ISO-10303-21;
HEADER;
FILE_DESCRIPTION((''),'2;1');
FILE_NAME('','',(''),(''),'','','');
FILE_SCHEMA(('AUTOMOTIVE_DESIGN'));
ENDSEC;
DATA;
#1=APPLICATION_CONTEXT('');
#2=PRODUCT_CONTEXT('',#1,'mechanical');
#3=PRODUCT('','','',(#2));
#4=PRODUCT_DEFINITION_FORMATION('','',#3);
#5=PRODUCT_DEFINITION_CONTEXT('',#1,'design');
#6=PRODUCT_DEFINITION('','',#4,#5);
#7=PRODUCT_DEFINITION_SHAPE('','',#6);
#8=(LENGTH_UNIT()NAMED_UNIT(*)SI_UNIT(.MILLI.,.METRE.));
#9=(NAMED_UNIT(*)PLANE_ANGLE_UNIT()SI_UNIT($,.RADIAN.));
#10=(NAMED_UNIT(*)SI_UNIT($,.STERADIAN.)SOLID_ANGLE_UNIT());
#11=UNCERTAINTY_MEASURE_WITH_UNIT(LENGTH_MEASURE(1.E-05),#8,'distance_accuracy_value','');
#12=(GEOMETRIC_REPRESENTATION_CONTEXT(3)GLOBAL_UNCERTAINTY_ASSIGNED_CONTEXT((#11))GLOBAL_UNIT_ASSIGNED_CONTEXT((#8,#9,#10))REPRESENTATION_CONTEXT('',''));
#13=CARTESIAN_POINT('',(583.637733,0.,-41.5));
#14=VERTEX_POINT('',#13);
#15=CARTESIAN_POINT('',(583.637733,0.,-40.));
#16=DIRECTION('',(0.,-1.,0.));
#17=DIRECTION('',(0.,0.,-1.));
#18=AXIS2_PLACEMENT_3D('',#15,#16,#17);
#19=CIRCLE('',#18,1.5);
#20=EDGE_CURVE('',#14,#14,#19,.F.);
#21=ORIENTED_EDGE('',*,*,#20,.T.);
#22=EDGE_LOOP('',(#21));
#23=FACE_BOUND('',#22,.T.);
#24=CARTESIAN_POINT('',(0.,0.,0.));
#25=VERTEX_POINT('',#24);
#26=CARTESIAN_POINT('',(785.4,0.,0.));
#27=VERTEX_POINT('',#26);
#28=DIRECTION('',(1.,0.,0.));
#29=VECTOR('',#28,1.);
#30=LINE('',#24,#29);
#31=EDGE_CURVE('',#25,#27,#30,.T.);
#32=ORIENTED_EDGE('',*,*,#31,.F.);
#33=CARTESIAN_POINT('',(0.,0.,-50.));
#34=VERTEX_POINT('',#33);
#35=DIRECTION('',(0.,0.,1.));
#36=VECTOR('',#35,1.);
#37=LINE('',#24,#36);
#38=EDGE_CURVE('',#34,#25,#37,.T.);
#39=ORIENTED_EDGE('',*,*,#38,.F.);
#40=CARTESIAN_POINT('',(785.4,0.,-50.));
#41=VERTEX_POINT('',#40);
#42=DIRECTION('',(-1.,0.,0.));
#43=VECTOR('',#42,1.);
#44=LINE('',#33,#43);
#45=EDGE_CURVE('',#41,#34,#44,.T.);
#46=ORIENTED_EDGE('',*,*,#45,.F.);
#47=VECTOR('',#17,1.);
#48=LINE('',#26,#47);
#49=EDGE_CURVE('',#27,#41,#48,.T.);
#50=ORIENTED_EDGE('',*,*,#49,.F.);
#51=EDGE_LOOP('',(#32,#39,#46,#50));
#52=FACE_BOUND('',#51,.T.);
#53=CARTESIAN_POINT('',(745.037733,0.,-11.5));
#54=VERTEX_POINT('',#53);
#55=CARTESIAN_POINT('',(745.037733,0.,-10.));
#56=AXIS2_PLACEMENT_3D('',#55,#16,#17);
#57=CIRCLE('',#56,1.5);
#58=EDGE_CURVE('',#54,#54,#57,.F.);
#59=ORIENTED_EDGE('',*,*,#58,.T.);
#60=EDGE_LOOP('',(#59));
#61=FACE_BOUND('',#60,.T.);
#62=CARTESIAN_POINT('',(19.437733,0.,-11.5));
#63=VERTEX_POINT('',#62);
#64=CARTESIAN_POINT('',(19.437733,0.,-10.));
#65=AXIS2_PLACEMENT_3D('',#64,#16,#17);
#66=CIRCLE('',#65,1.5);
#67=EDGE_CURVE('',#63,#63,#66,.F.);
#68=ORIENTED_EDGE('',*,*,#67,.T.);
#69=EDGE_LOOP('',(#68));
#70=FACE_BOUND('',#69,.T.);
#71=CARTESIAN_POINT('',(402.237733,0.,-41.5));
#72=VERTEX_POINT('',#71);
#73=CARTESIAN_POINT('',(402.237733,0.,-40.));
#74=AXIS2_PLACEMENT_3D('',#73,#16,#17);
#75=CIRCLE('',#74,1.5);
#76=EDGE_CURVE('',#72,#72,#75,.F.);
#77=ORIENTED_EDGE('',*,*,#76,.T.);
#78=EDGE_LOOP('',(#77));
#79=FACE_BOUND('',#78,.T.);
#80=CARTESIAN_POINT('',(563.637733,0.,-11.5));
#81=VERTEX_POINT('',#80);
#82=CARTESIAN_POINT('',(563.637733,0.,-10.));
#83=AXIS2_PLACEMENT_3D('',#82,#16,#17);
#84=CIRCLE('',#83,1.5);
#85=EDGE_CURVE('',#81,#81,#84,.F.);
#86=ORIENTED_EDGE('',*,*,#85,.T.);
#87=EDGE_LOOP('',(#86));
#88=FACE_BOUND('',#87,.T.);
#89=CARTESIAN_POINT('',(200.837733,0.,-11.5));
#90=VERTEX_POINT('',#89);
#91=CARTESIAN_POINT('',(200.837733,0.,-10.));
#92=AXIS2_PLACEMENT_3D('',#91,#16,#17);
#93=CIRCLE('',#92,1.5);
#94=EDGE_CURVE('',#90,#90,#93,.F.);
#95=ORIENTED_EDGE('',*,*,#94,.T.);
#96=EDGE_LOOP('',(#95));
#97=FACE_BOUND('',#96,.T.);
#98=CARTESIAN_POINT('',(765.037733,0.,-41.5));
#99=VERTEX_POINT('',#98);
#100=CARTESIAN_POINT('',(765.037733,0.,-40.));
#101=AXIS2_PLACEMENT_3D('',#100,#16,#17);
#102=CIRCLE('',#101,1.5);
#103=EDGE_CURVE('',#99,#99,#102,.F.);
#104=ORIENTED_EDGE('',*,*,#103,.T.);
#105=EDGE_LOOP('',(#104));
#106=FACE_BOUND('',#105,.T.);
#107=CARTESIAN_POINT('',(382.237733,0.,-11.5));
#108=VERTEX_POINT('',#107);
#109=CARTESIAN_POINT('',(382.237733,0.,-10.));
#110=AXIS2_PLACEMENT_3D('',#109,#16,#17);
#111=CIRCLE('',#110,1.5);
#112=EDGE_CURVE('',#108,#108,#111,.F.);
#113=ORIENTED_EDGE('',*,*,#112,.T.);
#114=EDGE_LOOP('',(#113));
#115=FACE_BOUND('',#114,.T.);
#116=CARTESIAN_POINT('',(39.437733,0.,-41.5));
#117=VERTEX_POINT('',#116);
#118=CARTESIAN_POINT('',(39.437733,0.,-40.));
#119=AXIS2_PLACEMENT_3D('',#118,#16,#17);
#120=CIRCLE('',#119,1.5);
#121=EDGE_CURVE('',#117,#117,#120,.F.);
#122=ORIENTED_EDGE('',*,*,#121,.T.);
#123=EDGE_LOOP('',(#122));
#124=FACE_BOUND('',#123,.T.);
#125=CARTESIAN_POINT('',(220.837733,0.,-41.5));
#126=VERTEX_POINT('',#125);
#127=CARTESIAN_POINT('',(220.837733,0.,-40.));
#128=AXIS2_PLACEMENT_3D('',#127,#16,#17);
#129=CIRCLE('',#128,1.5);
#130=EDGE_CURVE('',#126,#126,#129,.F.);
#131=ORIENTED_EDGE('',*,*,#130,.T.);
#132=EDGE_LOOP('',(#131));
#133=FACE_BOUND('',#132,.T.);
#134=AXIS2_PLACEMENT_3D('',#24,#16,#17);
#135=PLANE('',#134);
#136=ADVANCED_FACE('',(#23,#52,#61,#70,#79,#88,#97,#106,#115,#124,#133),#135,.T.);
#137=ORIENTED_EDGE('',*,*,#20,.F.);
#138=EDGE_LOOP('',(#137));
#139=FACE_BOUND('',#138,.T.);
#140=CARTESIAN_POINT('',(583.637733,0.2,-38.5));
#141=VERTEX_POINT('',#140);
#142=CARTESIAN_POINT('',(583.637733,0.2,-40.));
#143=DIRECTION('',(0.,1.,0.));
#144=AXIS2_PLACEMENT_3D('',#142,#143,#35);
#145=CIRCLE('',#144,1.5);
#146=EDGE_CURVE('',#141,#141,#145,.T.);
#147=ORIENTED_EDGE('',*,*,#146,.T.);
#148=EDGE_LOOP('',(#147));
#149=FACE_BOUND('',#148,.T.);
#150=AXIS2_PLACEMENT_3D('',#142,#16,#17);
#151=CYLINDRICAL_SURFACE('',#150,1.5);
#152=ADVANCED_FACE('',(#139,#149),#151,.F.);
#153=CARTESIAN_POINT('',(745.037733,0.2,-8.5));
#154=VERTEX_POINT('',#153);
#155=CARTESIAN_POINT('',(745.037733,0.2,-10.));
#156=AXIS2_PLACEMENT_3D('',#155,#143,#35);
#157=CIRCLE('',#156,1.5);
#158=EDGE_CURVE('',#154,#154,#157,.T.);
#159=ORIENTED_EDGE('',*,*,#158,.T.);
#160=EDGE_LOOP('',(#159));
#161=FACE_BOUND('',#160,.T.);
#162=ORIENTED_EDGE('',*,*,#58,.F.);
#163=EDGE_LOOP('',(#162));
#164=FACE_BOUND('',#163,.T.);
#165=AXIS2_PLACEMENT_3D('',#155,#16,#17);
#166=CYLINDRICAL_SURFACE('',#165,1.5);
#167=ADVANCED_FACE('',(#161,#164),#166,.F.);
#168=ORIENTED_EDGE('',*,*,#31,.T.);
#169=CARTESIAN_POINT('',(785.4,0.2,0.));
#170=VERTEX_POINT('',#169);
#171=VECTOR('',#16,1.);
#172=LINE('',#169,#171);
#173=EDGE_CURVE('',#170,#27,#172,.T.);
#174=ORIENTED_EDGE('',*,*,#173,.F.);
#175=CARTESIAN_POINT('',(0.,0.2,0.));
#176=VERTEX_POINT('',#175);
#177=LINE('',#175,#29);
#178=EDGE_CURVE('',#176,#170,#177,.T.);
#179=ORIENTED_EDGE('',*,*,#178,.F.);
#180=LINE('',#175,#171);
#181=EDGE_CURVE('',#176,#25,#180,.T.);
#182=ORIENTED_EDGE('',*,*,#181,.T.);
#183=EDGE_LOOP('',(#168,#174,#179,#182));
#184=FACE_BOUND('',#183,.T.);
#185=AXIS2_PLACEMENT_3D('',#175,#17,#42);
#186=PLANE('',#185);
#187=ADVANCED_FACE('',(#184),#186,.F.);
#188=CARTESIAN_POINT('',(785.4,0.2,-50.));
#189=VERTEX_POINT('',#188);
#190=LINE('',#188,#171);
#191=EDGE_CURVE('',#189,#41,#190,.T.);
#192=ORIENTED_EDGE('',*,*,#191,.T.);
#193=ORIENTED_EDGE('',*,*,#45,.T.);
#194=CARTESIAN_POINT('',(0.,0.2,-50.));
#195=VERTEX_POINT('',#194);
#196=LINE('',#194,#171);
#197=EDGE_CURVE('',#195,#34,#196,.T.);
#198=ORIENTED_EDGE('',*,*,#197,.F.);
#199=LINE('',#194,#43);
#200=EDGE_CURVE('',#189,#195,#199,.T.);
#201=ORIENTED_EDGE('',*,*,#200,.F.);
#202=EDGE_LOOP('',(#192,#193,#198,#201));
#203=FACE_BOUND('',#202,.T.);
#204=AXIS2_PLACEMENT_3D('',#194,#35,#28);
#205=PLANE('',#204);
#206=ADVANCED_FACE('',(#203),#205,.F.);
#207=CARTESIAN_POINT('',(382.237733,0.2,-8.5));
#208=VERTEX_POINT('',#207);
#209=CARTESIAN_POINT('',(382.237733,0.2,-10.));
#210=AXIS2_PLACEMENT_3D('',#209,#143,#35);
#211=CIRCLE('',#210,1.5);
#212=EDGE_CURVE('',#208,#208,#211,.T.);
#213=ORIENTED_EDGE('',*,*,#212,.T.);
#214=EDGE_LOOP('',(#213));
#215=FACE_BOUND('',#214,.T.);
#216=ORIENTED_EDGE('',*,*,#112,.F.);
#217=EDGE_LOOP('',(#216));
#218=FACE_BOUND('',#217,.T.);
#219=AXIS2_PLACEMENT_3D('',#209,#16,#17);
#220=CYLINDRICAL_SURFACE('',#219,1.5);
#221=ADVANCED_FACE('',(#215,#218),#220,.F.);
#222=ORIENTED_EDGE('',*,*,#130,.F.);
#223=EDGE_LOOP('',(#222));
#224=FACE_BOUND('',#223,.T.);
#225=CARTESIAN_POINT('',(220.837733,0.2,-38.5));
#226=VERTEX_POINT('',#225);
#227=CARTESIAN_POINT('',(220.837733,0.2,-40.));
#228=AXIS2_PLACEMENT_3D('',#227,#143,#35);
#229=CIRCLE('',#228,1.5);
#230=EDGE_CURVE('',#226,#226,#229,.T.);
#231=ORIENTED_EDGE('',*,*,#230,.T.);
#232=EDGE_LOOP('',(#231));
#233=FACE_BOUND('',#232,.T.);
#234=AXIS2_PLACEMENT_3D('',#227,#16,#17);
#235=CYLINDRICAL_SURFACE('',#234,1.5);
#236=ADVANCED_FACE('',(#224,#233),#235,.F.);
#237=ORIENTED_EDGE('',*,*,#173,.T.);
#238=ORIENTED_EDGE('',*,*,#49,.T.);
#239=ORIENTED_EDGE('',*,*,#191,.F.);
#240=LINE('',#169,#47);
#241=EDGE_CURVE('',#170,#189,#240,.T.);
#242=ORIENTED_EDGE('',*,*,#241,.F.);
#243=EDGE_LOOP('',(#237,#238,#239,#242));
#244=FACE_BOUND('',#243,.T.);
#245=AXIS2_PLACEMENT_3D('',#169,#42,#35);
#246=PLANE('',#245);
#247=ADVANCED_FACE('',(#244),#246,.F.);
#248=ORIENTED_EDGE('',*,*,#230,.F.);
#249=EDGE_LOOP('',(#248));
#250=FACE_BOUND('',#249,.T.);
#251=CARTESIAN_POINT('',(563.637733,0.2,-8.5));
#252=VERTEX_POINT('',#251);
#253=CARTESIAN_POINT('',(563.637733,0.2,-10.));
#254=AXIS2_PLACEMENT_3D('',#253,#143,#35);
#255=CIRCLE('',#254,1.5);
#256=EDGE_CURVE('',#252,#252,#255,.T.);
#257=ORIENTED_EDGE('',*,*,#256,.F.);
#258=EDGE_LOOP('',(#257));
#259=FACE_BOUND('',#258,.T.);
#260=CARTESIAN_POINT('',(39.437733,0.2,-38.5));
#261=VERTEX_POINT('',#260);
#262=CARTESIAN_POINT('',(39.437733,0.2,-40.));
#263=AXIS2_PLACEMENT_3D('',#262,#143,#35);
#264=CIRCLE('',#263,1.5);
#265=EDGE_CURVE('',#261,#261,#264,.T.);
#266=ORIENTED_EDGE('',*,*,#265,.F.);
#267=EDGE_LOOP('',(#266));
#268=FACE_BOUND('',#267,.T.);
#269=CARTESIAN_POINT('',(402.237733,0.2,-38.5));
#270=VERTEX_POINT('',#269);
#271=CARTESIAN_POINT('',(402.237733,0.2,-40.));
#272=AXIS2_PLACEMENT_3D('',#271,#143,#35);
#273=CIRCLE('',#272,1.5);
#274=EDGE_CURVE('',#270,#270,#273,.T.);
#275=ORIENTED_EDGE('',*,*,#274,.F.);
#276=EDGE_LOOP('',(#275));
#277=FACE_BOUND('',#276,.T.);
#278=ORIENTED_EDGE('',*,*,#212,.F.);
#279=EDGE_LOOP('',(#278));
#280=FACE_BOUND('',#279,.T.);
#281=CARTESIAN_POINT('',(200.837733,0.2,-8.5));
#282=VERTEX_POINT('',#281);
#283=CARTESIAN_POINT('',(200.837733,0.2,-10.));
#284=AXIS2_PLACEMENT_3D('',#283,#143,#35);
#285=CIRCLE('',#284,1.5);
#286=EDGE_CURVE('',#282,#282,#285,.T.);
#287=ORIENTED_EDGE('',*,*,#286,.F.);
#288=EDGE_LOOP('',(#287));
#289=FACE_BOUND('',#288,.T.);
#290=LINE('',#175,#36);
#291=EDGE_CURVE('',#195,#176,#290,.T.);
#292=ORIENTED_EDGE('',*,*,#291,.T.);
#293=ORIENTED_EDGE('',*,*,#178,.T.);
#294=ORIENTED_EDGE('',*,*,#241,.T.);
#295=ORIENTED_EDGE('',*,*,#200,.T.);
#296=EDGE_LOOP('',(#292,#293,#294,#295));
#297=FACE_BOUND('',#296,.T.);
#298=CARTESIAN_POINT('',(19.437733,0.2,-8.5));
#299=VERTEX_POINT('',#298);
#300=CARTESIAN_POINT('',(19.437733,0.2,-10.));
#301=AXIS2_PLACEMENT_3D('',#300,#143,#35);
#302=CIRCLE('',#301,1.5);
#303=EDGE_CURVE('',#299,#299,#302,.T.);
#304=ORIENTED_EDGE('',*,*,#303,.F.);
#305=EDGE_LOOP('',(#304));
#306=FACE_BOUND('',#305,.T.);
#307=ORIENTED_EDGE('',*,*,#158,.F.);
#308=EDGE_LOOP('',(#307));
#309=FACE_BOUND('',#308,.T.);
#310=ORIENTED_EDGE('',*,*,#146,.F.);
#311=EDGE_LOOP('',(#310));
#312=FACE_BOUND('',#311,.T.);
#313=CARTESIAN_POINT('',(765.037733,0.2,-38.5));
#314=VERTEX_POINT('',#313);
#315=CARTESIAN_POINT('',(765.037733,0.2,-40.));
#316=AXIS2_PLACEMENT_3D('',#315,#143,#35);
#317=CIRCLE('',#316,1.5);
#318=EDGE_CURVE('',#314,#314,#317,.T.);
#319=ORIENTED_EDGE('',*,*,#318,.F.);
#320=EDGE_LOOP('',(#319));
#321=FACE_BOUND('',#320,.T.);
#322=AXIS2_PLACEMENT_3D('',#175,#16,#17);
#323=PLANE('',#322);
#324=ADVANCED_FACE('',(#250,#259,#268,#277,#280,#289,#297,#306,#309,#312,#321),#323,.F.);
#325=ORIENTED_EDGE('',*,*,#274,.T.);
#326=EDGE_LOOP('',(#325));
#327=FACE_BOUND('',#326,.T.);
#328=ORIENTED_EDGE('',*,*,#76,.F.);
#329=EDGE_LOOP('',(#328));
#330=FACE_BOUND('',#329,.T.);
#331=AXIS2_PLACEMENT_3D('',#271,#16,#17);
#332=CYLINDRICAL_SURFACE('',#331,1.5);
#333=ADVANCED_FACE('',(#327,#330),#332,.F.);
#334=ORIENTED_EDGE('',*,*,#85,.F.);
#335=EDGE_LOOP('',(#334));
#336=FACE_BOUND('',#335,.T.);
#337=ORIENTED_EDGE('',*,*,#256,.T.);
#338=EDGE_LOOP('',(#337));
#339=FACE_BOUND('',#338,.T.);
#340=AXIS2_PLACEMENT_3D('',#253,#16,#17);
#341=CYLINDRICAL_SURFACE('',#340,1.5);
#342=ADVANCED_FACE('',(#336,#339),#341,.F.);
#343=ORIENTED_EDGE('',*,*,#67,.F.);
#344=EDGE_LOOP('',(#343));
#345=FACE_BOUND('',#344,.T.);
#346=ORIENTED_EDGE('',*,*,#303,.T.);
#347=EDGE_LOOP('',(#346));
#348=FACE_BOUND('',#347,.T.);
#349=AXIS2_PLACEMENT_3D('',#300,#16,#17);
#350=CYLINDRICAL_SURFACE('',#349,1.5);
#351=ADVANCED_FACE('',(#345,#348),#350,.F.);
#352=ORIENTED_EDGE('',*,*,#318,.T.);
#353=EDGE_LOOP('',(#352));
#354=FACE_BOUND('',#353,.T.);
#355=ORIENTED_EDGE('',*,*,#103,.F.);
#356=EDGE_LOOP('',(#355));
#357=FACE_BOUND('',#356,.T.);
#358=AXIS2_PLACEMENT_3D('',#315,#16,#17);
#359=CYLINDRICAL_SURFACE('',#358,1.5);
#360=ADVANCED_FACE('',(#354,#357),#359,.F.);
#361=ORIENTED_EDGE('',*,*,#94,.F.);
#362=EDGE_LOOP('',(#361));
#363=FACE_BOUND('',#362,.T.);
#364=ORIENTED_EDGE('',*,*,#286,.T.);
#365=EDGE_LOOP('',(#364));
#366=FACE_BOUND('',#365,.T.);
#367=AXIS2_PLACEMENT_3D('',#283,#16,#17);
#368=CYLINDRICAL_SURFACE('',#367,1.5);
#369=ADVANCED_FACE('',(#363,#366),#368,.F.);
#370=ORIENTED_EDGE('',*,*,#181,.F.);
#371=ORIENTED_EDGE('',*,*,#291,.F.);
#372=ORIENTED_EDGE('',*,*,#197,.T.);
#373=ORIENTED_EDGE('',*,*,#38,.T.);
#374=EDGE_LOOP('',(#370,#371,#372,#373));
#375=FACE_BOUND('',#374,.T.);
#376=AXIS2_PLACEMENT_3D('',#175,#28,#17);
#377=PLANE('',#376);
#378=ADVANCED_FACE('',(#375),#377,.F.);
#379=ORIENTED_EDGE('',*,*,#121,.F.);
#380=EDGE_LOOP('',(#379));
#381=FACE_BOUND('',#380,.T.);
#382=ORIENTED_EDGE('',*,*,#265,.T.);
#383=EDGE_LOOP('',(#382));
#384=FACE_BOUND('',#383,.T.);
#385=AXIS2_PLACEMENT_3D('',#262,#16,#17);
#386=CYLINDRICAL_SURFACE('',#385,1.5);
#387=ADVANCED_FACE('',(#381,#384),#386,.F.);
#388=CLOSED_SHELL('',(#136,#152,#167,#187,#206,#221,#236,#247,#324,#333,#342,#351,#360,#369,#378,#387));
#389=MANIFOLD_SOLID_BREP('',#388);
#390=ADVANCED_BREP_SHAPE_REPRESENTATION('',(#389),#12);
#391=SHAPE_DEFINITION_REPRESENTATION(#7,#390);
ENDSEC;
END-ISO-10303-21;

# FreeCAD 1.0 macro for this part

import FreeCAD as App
import Part
import Sketcher

V = App.Vector


def add_polygon(sketch, points):
    """Adds a closed chain of lines whose ends are joined by coincident constraints."""
    first, n = sketch.GeometryCount, len(points)
    for a, b in zip(points, points[1:] + points[:1]):
        sketch.addGeometry(Part.LineSegment(App.Vector(*a, 0), App.Vector(*b, 0)), False)
    for i in range(n):
        sketch.addConstraint(Sketcher.Constraint("Coincident", first + i, 2, first + (i + 1) % n, 1))

doc = App.newDocument("Part")
body = doc.addObject("PartDesign::Body", "Body")

sketch1 = body.newObject("Sketcher::SketchObject", "Sketch")
sketch1.AttachmentSupport = (doc.getObject("XZ_Plane"), [""])
sketch1.MapMode = "FlatFace"
add_polygon(sketch1, [(0, -50), (0, 0), (785.4, 0), (785.4, -50)])
sketch1.addConstraint(Sketcher.Constraint("Vertical", 0))
sketch1.addConstraint(Sketcher.Constraint("Horizontal", 1))
sketch1.addConstraint(Sketcher.Constraint("Vertical", 2))
sketch1.addConstraint(Sketcher.Constraint("Horizontal", 3))
sketch1.addConstraint(Sketcher.Constraint("Coincident", 0, 2, -1, 1))
sketch1.addConstraint(Sketcher.Constraint("DistanceY", 0, 1, 0, 2, 50.0))
sketch1.addConstraint(Sketcher.Constraint("DistanceX", 1, 1, 1, 2, 785.4))
pad1 = body.newObject("PartDesign::Pad", "Pad")
pad1.Profile = sketch1
pad1.Length = 0.2
pad1.Reversed = True

sketch2 = body.newObject("Sketcher::SketchObject", "Sketch001")
sketch2.AttachmentSupport = (doc.getObject("XZ_Plane"), [""])
sketch2.MapMode = "FlatFace"
sketch2.addGeometry(Part.Circle(V(19.437733, -10, 0), V(0, 0, 1), 1.5), False)
sketch2.addGeometry(Part.Circle(V(39.437733, -40, 0), V(0, 0, 1), 1.5), False)
sketch2.addGeometry(Part.Circle(V(200.837733, -10, 0), V(0, 0, 1), 1.5), False)
sketch2.addGeometry(Part.Circle(V(220.837733, -40, 0), V(0, 0, 1), 1.5), False)
sketch2.addGeometry(Part.Circle(V(382.237733, -10, 0), V(0, 0, 1), 1.5), False)
sketch2.addGeometry(Part.Circle(V(402.237733, -40, 0), V(0, 0, 1), 1.5), False)
sketch2.addGeometry(Part.Circle(V(563.637733, -10, 0), V(0, 0, 1), 1.5), False)
sketch2.addGeometry(Part.Circle(V(583.637733, -40, 0), V(0, 0, 1), 1.5), False)
sketch2.addGeometry(Part.Circle(V(745.037733, -10, 0), V(0, 0, 1), 1.5), False)
sketch2.addGeometry(Part.Circle(V(765.037733, -40, 0), V(0, 0, 1), 1.5), False)
sketch2.addConstraint(Sketcher.Constraint("Equal", 0, 1))
sketch2.addConstraint(Sketcher.Constraint("Equal", 1, 2))
sketch2.addConstraint(Sketcher.Constraint("Equal", 2, 3))
sketch2.addConstraint(Sketcher.Constraint("Equal", 3, 4))
sketch2.addConstraint(Sketcher.Constraint("Equal", 4, 5))
sketch2.addConstraint(Sketcher.Constraint("Equal", 5, 6))
sketch2.addConstraint(Sketcher.Constraint("Equal", 6, 7))
sketch2.addConstraint(Sketcher.Constraint("Equal", 7, 8))
sketch2.addConstraint(Sketcher.Constraint("Equal", 8, 9))
sketch2.addConstraint(Sketcher.Constraint("Horizontal", 0, 3, 2, 3))
sketch2.addConstraint(Sketcher.Constraint("Horizontal", 1, 3, 3, 3))
sketch2.addConstraint(Sketcher.Constraint("Horizontal", 2, 3, 4, 3))
sketch2.addConstraint(Sketcher.Constraint("Horizontal", 3, 3, 5, 3))
sketch2.addConstraint(Sketcher.Constraint("Horizontal", 4, 3, 6, 3))
sketch2.addConstraint(Sketcher.Constraint("Horizontal", 5, 3, 7, 3))
sketch2.addConstraint(Sketcher.Constraint("Horizontal", 6, 3, 8, 3))
sketch2.addConstraint(Sketcher.Constraint("Horizontal", 7, 3, 9, 3))
sketch2.addConstraint(Sketcher.Constraint("Diameter", 0, 3.0))
sketch2.addConstraint(Sketcher.Constraint("DistanceY", 0, 3, -1, 1, 10.0))
sketch2.addConstraint(Sketcher.Constraint("DistanceY", 1, 3, -1, 1, 40.0))
sketch2.addConstraint(Sketcher.Constraint("DistanceX", 0, 3, 1, 3, 20.0))
sketch2.addConstraint(Sketcher.Constraint("DistanceX", 2, 3, 3, 3, 20.0))
sketch2.addConstraint(Sketcher.Constraint("DistanceX", 4, 3, 5, 3, 20.0))
sketch2.addConstraint(Sketcher.Constraint("DistanceX", 6, 3, 7, 3, 20.0))
sketch2.addConstraint(Sketcher.Constraint("DistanceX", 8, 3, 9, 3, 20.0))
sketch2.addConstraint(Sketcher.Constraint("DistanceX", 1, 3, 2, 3, 161.4))
sketch2.addConstraint(Sketcher.Constraint("DistanceX", 3, 3, 4, 3, 161.4))
sketch2.addConstraint(Sketcher.Constraint("DistanceX", 5, 3, 6, 3, 161.4))
sketch2.addConstraint(Sketcher.Constraint("DistanceX", 7, 3, 8, 3, 161.4))
sketch2.addConstraint(Sketcher.Constraint("DistanceX", -1, 1, 0, 3, 19.437733))
pocket1 = body.newObject("PartDesign::Pocket", "Pocket")
pocket1.Profile = sketch2
pocket1.Type = "ThroughAll"
pocket1.Midplane = True

doc.recompute()
